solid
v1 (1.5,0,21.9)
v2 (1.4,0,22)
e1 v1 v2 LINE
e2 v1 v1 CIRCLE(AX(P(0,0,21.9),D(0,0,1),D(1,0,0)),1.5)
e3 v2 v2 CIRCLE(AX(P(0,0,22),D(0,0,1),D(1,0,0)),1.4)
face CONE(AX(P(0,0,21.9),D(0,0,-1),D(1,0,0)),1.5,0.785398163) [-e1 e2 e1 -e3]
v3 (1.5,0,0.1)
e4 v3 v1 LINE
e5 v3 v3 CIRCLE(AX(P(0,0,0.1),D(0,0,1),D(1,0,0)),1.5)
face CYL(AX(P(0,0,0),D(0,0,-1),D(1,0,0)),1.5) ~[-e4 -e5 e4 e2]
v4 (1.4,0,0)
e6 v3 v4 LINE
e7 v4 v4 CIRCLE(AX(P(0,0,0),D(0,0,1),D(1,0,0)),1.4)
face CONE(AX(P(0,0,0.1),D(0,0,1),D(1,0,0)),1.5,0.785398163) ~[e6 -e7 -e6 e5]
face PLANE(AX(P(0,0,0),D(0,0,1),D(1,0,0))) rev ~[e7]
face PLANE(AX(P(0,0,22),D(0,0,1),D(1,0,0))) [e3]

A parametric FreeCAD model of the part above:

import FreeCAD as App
import Part
import Sketcher

V = App.Vector
Q = App.Units.Quantity


def edges_at(feature, points):
    """Names of the edges that pass closest to the given points."""
    edges = feature.Shape.Edges
    near = lambda p: min(range(len(edges)), key=lambda i: edges[i].distToShape(Part.Vertex(*p))[0])
    return sorted({f"Edge{near(p) + 1}" for p in points})

doc = App.newDocument("Part")
body = doc.addObject("PartDesign::Body", "Body")

# Sketch on XY plane
sketch1 = body.newObject("Sketcher::SketchObject", "Sketch")
sketch1.AttachmentSupport = (doc.getObject("XY_Plane"), [""])
sketch1.MapMode = "FlatFace"
sketch1.addGeometry(Part.Circle(V(0, 0, 0), V(0, 0, 1), 1.5), False)
sketch1.addConstraint([
    Sketcher.Constraint("Coincident", 0, 3, -1, 1),
    Sketcher.Constraint("Diameter", 0, Q("3 mm")),
])
pad1 = body.newObject("PartDesign::Pad", "Pad")
pad1.Profile = sketch1
pad1.Length = 22
doc.recompute()

chamfer = body.newObject("PartDesign::Chamfer", "Chamfer")
chamfer.Base = (pad1, edges_at(pad1, [(-1.5, 0, 22), (-1.5, 0, 0)]))
chamfer.Size = 0.1

doc.recompute()
